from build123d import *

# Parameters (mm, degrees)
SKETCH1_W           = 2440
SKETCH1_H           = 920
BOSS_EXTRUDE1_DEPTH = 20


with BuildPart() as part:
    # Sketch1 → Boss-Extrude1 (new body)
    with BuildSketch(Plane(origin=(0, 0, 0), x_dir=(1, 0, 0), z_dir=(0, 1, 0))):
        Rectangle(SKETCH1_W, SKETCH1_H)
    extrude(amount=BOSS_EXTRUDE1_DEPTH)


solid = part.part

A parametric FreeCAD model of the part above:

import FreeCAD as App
import Part
import Sketcher

V = App.Vector
Q = App.Units.Quantity


def add_polygon(sketch, points):
    """Adds a closed chain of lines whose ends are joined by coincident constraints."""
    first, n = sketch.GeometryCount, len(points)
    for a, b in zip(points, points[1:] + points[:1]):
        sketch.addGeometry(Part.LineSegment(App.Vector(*a, 0), App.Vector(*b, 0)), False)
    for i in range(n):
        sketch.addConstraint(Sketcher.Constraint("Coincident", first + i, 2, first + (i + 1) % n, 1))

doc = App.newDocument("Part")
body = doc.addObject("PartDesign::Body", "Body")

# Sketch on XZ plane
sketch1 = body.newObject("Sketcher::SketchObject", "Sketch")
sketch1.AttachmentSupport = (doc.getObject("XZ_Plane"), [""])
sketch1.MapMode = "FlatFace"
add_polygon(sketch1, [(-1220, -460), (-1220, 460), (1220, 460), (1220, -460)])  # lines 0-3
sketch1.addConstraint(Sketcher.Constraint("Vertical", 0))
sketch1.addConstraint(Sketcher.Constraint("Horizontal", 1))
sketch1.addConstraint(Sketcher.Constraint("Vertical", 2))
sketch1.addConstraint(Sketcher.Constraint("Horizontal", 3))
sketch1.addConstraint(Sketcher.Constraint("Symmetric", 0, 2, 2, 2, -1, 1))
sketch1.addConstraint(Sketcher.Constraint("DistanceX", 1, 1, 1, 2, Q("2440 mm")))
sketch1.addConstraint(Sketcher.Constraint("DistanceY", 0, 1, 0, 2, Q("920 mm")))
pad1 = body.newObject("PartDesign::Pad", "Pad")
pad1.Profile = sketch1
pad1.Length = 20
pad1.Reversed = True

doc.recompute()
